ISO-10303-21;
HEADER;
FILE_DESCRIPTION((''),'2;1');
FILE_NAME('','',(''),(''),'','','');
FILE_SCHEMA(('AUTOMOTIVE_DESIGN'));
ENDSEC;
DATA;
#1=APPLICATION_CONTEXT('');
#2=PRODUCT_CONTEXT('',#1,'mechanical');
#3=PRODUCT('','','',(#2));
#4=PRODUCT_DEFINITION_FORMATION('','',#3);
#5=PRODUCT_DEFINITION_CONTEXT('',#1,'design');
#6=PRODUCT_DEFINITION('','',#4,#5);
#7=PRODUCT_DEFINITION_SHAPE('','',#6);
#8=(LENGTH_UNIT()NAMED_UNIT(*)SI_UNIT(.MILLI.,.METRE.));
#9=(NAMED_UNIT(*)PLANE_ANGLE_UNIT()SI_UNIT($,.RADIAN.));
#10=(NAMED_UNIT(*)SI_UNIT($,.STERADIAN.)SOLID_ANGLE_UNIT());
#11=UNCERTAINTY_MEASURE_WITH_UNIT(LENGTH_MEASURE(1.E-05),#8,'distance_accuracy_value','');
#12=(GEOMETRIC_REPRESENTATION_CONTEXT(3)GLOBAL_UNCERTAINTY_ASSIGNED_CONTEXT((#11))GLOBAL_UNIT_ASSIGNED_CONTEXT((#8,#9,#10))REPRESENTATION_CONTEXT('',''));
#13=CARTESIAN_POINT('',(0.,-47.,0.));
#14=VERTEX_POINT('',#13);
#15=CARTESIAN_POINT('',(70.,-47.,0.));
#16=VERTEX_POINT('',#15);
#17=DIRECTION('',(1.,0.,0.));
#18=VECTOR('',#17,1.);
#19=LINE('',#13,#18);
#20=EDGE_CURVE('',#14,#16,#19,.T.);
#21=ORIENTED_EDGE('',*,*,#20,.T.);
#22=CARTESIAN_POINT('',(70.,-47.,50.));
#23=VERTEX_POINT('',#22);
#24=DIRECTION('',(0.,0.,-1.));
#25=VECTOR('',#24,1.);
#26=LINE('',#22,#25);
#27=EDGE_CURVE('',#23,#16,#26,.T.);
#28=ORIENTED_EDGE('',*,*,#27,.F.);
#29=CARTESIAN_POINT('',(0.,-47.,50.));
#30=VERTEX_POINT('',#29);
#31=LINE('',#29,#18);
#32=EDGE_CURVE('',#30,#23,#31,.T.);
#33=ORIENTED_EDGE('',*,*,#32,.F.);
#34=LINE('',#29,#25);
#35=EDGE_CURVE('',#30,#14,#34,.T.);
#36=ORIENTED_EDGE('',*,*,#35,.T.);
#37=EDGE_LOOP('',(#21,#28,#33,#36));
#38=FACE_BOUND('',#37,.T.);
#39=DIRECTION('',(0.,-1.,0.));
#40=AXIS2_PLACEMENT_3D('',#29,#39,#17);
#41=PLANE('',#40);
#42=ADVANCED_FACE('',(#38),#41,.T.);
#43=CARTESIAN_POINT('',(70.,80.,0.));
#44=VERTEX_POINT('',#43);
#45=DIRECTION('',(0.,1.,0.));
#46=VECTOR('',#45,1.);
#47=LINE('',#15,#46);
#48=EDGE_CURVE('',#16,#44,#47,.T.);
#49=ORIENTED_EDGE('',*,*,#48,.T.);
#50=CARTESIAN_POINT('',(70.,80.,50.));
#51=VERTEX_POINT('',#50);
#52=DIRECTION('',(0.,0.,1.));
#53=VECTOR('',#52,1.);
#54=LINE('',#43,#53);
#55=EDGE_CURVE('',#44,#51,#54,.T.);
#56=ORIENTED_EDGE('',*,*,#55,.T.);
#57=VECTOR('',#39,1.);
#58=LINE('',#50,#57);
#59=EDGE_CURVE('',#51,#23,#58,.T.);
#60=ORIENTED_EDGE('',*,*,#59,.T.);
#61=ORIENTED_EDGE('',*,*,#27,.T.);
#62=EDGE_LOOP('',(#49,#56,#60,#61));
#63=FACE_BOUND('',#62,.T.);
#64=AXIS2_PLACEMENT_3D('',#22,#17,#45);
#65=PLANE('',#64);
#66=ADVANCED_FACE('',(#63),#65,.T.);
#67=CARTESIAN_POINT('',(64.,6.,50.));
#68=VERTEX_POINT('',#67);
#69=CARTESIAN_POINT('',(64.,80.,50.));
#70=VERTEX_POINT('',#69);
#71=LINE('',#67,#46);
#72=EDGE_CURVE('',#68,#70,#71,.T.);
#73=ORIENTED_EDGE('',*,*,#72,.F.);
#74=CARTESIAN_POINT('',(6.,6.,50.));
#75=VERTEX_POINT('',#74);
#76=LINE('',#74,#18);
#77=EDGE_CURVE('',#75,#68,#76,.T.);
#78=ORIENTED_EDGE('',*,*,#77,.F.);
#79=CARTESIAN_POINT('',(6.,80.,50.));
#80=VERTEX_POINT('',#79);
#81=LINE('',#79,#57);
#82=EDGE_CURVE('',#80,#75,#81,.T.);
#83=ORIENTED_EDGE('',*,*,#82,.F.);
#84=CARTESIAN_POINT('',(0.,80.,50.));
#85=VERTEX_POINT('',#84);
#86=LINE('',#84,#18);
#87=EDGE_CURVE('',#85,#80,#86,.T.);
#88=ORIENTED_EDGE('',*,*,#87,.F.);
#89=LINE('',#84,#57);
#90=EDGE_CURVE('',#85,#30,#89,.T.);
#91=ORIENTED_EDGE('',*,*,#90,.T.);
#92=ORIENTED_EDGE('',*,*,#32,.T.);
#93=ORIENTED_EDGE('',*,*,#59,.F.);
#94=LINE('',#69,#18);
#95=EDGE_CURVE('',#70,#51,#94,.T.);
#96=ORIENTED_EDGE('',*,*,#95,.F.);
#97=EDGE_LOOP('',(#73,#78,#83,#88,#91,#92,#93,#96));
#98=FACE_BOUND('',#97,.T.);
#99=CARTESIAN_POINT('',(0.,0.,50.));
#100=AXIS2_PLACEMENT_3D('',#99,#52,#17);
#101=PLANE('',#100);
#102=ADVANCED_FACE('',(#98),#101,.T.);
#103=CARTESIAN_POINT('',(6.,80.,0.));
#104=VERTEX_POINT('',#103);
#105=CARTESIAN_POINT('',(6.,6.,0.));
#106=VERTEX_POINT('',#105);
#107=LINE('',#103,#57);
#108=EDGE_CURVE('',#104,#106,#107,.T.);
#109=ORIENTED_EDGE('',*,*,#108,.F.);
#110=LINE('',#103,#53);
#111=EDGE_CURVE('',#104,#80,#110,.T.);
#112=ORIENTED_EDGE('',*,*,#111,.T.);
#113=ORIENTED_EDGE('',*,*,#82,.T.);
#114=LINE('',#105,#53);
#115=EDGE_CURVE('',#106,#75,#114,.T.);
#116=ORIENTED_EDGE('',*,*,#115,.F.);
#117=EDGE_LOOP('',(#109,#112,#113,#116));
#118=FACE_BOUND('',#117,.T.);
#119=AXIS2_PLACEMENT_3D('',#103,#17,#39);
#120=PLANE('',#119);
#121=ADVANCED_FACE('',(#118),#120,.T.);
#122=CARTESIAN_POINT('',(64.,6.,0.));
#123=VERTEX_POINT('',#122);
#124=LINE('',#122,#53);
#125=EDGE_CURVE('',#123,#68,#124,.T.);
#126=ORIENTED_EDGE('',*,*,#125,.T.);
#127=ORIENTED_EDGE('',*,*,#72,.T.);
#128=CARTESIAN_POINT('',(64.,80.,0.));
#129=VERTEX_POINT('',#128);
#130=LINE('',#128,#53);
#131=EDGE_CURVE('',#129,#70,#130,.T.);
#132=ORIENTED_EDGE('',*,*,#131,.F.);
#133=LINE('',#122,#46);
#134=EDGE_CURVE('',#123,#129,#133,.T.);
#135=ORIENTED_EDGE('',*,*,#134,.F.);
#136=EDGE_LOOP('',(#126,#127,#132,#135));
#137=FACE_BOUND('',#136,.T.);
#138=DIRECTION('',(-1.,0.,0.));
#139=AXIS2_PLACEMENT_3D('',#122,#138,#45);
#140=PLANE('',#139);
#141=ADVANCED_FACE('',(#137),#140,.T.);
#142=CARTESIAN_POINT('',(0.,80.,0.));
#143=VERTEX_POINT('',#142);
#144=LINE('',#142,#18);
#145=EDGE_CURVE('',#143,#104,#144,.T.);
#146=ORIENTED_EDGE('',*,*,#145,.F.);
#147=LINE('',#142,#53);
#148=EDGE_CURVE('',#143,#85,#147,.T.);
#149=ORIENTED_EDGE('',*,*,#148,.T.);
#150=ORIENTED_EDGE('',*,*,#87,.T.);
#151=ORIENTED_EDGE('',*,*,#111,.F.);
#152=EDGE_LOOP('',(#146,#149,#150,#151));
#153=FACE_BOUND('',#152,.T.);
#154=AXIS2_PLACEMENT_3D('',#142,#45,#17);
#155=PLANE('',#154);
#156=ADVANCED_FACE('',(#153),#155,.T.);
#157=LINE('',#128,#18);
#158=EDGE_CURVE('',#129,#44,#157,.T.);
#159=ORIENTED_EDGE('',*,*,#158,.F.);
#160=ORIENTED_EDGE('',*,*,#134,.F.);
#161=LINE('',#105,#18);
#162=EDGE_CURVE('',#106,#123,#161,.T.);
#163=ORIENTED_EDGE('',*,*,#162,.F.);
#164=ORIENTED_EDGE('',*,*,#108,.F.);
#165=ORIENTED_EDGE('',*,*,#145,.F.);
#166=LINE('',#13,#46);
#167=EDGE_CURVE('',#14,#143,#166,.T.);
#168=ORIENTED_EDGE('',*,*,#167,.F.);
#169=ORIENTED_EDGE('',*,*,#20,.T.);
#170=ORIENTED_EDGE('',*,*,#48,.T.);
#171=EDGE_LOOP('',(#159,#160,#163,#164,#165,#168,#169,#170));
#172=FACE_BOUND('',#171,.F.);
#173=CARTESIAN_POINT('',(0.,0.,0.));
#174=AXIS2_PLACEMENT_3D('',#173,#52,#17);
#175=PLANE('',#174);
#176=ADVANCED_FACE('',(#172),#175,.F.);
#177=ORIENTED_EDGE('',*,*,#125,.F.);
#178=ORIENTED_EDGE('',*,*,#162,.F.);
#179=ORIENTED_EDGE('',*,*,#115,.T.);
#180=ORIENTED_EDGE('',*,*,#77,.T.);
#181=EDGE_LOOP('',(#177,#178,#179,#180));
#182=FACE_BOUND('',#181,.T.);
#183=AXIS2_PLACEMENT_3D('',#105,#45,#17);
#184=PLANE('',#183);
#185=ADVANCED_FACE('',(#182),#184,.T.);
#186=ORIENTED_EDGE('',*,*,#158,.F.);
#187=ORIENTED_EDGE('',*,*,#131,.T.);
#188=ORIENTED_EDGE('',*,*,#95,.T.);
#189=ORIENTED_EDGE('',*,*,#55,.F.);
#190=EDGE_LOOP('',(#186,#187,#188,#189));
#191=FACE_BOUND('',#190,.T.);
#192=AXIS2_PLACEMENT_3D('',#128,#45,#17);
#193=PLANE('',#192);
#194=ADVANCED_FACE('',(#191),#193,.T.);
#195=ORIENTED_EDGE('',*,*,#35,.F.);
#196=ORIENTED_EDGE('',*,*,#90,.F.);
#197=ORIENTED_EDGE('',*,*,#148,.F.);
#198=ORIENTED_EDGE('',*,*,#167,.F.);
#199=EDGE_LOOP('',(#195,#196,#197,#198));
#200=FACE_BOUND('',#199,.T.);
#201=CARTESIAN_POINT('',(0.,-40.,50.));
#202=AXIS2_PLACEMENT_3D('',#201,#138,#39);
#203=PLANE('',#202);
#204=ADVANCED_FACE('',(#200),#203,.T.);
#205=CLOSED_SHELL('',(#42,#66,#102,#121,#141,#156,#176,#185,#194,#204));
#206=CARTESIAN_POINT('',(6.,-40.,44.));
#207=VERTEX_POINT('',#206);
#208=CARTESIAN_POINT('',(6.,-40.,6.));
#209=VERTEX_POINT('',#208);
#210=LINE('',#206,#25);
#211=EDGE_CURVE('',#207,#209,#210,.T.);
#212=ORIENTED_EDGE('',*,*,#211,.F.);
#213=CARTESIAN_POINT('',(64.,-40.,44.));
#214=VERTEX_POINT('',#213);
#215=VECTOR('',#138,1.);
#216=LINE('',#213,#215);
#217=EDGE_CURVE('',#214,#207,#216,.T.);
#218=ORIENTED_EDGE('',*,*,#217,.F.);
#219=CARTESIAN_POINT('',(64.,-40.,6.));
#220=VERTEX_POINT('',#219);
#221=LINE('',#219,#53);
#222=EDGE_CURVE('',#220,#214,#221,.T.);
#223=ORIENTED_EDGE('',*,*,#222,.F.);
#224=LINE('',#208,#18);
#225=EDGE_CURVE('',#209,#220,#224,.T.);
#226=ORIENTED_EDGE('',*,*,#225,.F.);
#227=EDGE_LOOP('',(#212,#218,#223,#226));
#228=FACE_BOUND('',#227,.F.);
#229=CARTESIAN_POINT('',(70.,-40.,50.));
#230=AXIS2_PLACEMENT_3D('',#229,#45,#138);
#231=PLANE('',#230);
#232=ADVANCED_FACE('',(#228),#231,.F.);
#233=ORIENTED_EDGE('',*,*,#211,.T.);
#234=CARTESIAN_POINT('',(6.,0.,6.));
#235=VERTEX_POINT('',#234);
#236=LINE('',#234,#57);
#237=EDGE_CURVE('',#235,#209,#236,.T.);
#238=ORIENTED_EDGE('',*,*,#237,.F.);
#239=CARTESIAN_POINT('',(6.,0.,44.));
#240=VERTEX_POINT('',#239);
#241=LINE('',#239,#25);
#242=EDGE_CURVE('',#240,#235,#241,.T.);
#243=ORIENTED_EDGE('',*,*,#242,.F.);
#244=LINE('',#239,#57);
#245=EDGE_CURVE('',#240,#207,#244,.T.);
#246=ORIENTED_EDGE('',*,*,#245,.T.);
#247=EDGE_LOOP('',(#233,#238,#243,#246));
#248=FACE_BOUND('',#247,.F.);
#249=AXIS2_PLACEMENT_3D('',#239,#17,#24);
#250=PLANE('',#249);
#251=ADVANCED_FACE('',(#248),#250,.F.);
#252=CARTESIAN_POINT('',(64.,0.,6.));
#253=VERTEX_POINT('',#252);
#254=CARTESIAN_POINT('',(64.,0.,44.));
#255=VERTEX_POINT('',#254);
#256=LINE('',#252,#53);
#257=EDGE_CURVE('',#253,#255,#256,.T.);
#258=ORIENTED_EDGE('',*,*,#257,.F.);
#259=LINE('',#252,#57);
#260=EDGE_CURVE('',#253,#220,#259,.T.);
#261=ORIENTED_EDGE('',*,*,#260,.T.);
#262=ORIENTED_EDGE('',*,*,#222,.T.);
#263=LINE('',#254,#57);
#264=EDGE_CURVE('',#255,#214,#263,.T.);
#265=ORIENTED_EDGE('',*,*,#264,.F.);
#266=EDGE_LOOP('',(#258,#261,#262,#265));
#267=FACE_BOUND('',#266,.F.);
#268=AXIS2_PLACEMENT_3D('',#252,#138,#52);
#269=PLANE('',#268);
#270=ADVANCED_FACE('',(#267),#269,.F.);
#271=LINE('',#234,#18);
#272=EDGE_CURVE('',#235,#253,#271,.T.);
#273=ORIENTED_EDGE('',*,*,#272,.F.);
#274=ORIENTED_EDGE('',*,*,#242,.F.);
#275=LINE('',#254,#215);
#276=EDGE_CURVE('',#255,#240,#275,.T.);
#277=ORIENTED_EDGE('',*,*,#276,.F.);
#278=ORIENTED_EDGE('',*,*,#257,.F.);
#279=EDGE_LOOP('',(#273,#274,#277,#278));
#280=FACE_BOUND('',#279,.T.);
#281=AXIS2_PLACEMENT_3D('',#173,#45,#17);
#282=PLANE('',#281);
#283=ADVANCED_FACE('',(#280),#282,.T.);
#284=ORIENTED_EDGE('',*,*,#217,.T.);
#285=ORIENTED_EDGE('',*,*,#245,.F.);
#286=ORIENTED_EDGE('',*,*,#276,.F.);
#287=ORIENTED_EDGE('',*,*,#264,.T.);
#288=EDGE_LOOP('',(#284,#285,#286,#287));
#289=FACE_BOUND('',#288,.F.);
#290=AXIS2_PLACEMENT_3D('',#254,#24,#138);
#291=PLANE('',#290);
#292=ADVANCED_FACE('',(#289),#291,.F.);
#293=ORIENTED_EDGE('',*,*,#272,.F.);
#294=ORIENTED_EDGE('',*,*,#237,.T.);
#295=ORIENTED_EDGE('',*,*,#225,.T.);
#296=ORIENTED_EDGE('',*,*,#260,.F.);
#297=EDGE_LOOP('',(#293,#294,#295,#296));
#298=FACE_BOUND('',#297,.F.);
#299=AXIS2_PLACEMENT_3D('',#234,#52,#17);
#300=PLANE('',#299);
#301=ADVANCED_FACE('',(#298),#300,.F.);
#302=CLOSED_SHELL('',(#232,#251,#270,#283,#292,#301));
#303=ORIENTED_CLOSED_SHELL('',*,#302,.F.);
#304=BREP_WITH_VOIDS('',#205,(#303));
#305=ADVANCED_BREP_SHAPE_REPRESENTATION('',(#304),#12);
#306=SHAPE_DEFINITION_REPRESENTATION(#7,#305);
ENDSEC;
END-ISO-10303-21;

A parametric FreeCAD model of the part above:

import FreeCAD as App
import Part
import Sketcher
from FreeCAD import Vector
Q = App.Units.Quantity


def add_polygon(sketch, points):
    """Adds a closed chain of lines whose ends are joined by coincident constraints."""
    first, n = sketch.GeometryCount, len(points)
    for a, b in zip(points, points[1:] + points[:1]):
        sketch.addGeometry(Part.LineSegment(App.Vector(*a, 0), App.Vector(*b, 0)), False)
    for i in range(n):
        sketch.addConstraint(Sketcher.Constraint("Coincident", first + i, 2, first + (i + 1) % n, 1))

doc = App.newDocument("Part")
body = doc.addObject("PartDesign::Body", "Body")

sketch1 = body.newObject("Sketcher::SketchObject", "Sketch")
sketch1.AttachmentSupport = (doc.getObject("XY_Plane"), [""])
sketch1.MapMode = "FlatFace"
add_polygon(sketch1, [(6, 80), (0, 80), (0, 0), (70, 0), (70, 80), (64, 80), (64, 6), (6, 6)])
sketch1.addConstraint([
    Sketcher.Constraint("Horizontal", 0),
    Sketcher.Constraint("Vertical", 1),
    Sketcher.Constraint("Horizontal", 2),
    Sketcher.Constraint("Vertical", 3),
    Sketcher.Constraint("Horizontal", 4),
    Sketcher.Constraint("Vertical", 5),
    Sketcher.Constraint("Horizontal", 6),
    Sketcher.Constraint("Vertical", 7),
    Sketcher.Constraint("Coincident", 1, 2, -1, 1),
    Sketcher.Constraint("Horizontal", 0, 2, 3, 2),
    Sketcher.Constraint("Equal", 0, 4),
    Sketcher.Constraint("DistanceX", 0, 2, 0, 1, Q("6 mm")),
    Sketcher.Constraint("DistanceX", 2, 1, 2, 2, Q("70 mm")),
    Sketcher.Constraint("DistanceY", 1, 2, 1, 1, Q("80 mm")),
    Sketcher.Constraint("DistanceY", -1, 1, 5, 2, Q("6 mm")),
])
pad1 = body.newObject("PartDesign::Pad", "Pad")
pad1.Profile = sketch1
pad1.Length = 50

sketch2 = body.newObject("Sketcher::SketchObject", "Sketch001")
sketch2.AttachmentSupport = (doc.getObject("XZ_Plane"), [""])
sketch2.MapMode = "FlatFace"
add_polygon(sketch2, [(0, 0), (70, 0), (70, 50), (0, 50)])
add_polygon(sketch2, [(64, 6), (6, 6), (6, 44), (64, 44)])
sketch2.addConstraint([
    Sketcher.Constraint("Horizontal", 0),
    Sketcher.Constraint("Vertical", 1),
    Sketcher.Constraint("Horizontal", 2),
    Sketcher.Constraint("Vertical", 3),
    Sketcher.Constraint("Horizontal", 4),
    Sketcher.Constraint("Vertical", 5),
    Sketcher.Constraint("Horizontal", 6),
    Sketcher.Constraint("Vertical", 7),
    Sketcher.Constraint("Coincident", 3, 2, -1, 1),
    Sketcher.Constraint("DistanceX", -1, 1, 4, 2, Q("6 mm")),
    Sketcher.Constraint("DistanceY", -1, 1, 4, 2, Q("6 mm")),
    Sketcher.Constraint("DistanceY", 5, 2, 2, 2, Q("6 mm")),
    Sketcher.Constraint("DistanceX", 6, 2, 1, 2, Q("6 mm")),
    Sketcher.Constraint("DistanceX", 0, 1, 0, 2, Q("70 mm")),
    Sketcher.Constraint("DistanceY", 1, 1, 1, 2, Q("50 mm")),
])
pad2 = body.newObject("PartDesign::Pad", "Pad001")
pad2.Profile = sketch2
pad2.Length = 40

sketch3 = body.newObject("Sketcher::SketchObject", "Sketch002")
sketch3.AttachmentSupport = (doc.getObject("XY_Plane"), [""])
sketch3.MapMode = "FlatFace"
sketch3.AttachmentOffset = App.Placement(Vector(0, 0, 50), App.Rotation())
add_polygon(sketch3, [(70, -47), (70, -40), (0, -40), (0, -47)])
sketch3.addConstraint([
    Sketcher.Constraint("Vertical", 0),
    Sketcher.Constraint("Horizontal", 1),
    Sketcher.Constraint("Vertical", 2),
    Sketcher.Constraint("Horizontal", 3),
    Sketcher.Constraint("PointOnObject", 1, 2, -2),
    Sketcher.Constraint("DistanceX", 1, 2, 1, 1, Q("70 mm")),
    Sketcher.Constraint("DistanceY", 0, 1, 0, 2, Q("7 mm")),
    Sketcher.Constraint("DistanceY", 0, 2, -1, 1, Q("40 mm")),
])
pad3 = body.newObject("PartDesign::Pad", "Pad002")
pad3.Profile = sketch3
pad3.Length = 50
pad3.Reversed = True

doc.recompute()
